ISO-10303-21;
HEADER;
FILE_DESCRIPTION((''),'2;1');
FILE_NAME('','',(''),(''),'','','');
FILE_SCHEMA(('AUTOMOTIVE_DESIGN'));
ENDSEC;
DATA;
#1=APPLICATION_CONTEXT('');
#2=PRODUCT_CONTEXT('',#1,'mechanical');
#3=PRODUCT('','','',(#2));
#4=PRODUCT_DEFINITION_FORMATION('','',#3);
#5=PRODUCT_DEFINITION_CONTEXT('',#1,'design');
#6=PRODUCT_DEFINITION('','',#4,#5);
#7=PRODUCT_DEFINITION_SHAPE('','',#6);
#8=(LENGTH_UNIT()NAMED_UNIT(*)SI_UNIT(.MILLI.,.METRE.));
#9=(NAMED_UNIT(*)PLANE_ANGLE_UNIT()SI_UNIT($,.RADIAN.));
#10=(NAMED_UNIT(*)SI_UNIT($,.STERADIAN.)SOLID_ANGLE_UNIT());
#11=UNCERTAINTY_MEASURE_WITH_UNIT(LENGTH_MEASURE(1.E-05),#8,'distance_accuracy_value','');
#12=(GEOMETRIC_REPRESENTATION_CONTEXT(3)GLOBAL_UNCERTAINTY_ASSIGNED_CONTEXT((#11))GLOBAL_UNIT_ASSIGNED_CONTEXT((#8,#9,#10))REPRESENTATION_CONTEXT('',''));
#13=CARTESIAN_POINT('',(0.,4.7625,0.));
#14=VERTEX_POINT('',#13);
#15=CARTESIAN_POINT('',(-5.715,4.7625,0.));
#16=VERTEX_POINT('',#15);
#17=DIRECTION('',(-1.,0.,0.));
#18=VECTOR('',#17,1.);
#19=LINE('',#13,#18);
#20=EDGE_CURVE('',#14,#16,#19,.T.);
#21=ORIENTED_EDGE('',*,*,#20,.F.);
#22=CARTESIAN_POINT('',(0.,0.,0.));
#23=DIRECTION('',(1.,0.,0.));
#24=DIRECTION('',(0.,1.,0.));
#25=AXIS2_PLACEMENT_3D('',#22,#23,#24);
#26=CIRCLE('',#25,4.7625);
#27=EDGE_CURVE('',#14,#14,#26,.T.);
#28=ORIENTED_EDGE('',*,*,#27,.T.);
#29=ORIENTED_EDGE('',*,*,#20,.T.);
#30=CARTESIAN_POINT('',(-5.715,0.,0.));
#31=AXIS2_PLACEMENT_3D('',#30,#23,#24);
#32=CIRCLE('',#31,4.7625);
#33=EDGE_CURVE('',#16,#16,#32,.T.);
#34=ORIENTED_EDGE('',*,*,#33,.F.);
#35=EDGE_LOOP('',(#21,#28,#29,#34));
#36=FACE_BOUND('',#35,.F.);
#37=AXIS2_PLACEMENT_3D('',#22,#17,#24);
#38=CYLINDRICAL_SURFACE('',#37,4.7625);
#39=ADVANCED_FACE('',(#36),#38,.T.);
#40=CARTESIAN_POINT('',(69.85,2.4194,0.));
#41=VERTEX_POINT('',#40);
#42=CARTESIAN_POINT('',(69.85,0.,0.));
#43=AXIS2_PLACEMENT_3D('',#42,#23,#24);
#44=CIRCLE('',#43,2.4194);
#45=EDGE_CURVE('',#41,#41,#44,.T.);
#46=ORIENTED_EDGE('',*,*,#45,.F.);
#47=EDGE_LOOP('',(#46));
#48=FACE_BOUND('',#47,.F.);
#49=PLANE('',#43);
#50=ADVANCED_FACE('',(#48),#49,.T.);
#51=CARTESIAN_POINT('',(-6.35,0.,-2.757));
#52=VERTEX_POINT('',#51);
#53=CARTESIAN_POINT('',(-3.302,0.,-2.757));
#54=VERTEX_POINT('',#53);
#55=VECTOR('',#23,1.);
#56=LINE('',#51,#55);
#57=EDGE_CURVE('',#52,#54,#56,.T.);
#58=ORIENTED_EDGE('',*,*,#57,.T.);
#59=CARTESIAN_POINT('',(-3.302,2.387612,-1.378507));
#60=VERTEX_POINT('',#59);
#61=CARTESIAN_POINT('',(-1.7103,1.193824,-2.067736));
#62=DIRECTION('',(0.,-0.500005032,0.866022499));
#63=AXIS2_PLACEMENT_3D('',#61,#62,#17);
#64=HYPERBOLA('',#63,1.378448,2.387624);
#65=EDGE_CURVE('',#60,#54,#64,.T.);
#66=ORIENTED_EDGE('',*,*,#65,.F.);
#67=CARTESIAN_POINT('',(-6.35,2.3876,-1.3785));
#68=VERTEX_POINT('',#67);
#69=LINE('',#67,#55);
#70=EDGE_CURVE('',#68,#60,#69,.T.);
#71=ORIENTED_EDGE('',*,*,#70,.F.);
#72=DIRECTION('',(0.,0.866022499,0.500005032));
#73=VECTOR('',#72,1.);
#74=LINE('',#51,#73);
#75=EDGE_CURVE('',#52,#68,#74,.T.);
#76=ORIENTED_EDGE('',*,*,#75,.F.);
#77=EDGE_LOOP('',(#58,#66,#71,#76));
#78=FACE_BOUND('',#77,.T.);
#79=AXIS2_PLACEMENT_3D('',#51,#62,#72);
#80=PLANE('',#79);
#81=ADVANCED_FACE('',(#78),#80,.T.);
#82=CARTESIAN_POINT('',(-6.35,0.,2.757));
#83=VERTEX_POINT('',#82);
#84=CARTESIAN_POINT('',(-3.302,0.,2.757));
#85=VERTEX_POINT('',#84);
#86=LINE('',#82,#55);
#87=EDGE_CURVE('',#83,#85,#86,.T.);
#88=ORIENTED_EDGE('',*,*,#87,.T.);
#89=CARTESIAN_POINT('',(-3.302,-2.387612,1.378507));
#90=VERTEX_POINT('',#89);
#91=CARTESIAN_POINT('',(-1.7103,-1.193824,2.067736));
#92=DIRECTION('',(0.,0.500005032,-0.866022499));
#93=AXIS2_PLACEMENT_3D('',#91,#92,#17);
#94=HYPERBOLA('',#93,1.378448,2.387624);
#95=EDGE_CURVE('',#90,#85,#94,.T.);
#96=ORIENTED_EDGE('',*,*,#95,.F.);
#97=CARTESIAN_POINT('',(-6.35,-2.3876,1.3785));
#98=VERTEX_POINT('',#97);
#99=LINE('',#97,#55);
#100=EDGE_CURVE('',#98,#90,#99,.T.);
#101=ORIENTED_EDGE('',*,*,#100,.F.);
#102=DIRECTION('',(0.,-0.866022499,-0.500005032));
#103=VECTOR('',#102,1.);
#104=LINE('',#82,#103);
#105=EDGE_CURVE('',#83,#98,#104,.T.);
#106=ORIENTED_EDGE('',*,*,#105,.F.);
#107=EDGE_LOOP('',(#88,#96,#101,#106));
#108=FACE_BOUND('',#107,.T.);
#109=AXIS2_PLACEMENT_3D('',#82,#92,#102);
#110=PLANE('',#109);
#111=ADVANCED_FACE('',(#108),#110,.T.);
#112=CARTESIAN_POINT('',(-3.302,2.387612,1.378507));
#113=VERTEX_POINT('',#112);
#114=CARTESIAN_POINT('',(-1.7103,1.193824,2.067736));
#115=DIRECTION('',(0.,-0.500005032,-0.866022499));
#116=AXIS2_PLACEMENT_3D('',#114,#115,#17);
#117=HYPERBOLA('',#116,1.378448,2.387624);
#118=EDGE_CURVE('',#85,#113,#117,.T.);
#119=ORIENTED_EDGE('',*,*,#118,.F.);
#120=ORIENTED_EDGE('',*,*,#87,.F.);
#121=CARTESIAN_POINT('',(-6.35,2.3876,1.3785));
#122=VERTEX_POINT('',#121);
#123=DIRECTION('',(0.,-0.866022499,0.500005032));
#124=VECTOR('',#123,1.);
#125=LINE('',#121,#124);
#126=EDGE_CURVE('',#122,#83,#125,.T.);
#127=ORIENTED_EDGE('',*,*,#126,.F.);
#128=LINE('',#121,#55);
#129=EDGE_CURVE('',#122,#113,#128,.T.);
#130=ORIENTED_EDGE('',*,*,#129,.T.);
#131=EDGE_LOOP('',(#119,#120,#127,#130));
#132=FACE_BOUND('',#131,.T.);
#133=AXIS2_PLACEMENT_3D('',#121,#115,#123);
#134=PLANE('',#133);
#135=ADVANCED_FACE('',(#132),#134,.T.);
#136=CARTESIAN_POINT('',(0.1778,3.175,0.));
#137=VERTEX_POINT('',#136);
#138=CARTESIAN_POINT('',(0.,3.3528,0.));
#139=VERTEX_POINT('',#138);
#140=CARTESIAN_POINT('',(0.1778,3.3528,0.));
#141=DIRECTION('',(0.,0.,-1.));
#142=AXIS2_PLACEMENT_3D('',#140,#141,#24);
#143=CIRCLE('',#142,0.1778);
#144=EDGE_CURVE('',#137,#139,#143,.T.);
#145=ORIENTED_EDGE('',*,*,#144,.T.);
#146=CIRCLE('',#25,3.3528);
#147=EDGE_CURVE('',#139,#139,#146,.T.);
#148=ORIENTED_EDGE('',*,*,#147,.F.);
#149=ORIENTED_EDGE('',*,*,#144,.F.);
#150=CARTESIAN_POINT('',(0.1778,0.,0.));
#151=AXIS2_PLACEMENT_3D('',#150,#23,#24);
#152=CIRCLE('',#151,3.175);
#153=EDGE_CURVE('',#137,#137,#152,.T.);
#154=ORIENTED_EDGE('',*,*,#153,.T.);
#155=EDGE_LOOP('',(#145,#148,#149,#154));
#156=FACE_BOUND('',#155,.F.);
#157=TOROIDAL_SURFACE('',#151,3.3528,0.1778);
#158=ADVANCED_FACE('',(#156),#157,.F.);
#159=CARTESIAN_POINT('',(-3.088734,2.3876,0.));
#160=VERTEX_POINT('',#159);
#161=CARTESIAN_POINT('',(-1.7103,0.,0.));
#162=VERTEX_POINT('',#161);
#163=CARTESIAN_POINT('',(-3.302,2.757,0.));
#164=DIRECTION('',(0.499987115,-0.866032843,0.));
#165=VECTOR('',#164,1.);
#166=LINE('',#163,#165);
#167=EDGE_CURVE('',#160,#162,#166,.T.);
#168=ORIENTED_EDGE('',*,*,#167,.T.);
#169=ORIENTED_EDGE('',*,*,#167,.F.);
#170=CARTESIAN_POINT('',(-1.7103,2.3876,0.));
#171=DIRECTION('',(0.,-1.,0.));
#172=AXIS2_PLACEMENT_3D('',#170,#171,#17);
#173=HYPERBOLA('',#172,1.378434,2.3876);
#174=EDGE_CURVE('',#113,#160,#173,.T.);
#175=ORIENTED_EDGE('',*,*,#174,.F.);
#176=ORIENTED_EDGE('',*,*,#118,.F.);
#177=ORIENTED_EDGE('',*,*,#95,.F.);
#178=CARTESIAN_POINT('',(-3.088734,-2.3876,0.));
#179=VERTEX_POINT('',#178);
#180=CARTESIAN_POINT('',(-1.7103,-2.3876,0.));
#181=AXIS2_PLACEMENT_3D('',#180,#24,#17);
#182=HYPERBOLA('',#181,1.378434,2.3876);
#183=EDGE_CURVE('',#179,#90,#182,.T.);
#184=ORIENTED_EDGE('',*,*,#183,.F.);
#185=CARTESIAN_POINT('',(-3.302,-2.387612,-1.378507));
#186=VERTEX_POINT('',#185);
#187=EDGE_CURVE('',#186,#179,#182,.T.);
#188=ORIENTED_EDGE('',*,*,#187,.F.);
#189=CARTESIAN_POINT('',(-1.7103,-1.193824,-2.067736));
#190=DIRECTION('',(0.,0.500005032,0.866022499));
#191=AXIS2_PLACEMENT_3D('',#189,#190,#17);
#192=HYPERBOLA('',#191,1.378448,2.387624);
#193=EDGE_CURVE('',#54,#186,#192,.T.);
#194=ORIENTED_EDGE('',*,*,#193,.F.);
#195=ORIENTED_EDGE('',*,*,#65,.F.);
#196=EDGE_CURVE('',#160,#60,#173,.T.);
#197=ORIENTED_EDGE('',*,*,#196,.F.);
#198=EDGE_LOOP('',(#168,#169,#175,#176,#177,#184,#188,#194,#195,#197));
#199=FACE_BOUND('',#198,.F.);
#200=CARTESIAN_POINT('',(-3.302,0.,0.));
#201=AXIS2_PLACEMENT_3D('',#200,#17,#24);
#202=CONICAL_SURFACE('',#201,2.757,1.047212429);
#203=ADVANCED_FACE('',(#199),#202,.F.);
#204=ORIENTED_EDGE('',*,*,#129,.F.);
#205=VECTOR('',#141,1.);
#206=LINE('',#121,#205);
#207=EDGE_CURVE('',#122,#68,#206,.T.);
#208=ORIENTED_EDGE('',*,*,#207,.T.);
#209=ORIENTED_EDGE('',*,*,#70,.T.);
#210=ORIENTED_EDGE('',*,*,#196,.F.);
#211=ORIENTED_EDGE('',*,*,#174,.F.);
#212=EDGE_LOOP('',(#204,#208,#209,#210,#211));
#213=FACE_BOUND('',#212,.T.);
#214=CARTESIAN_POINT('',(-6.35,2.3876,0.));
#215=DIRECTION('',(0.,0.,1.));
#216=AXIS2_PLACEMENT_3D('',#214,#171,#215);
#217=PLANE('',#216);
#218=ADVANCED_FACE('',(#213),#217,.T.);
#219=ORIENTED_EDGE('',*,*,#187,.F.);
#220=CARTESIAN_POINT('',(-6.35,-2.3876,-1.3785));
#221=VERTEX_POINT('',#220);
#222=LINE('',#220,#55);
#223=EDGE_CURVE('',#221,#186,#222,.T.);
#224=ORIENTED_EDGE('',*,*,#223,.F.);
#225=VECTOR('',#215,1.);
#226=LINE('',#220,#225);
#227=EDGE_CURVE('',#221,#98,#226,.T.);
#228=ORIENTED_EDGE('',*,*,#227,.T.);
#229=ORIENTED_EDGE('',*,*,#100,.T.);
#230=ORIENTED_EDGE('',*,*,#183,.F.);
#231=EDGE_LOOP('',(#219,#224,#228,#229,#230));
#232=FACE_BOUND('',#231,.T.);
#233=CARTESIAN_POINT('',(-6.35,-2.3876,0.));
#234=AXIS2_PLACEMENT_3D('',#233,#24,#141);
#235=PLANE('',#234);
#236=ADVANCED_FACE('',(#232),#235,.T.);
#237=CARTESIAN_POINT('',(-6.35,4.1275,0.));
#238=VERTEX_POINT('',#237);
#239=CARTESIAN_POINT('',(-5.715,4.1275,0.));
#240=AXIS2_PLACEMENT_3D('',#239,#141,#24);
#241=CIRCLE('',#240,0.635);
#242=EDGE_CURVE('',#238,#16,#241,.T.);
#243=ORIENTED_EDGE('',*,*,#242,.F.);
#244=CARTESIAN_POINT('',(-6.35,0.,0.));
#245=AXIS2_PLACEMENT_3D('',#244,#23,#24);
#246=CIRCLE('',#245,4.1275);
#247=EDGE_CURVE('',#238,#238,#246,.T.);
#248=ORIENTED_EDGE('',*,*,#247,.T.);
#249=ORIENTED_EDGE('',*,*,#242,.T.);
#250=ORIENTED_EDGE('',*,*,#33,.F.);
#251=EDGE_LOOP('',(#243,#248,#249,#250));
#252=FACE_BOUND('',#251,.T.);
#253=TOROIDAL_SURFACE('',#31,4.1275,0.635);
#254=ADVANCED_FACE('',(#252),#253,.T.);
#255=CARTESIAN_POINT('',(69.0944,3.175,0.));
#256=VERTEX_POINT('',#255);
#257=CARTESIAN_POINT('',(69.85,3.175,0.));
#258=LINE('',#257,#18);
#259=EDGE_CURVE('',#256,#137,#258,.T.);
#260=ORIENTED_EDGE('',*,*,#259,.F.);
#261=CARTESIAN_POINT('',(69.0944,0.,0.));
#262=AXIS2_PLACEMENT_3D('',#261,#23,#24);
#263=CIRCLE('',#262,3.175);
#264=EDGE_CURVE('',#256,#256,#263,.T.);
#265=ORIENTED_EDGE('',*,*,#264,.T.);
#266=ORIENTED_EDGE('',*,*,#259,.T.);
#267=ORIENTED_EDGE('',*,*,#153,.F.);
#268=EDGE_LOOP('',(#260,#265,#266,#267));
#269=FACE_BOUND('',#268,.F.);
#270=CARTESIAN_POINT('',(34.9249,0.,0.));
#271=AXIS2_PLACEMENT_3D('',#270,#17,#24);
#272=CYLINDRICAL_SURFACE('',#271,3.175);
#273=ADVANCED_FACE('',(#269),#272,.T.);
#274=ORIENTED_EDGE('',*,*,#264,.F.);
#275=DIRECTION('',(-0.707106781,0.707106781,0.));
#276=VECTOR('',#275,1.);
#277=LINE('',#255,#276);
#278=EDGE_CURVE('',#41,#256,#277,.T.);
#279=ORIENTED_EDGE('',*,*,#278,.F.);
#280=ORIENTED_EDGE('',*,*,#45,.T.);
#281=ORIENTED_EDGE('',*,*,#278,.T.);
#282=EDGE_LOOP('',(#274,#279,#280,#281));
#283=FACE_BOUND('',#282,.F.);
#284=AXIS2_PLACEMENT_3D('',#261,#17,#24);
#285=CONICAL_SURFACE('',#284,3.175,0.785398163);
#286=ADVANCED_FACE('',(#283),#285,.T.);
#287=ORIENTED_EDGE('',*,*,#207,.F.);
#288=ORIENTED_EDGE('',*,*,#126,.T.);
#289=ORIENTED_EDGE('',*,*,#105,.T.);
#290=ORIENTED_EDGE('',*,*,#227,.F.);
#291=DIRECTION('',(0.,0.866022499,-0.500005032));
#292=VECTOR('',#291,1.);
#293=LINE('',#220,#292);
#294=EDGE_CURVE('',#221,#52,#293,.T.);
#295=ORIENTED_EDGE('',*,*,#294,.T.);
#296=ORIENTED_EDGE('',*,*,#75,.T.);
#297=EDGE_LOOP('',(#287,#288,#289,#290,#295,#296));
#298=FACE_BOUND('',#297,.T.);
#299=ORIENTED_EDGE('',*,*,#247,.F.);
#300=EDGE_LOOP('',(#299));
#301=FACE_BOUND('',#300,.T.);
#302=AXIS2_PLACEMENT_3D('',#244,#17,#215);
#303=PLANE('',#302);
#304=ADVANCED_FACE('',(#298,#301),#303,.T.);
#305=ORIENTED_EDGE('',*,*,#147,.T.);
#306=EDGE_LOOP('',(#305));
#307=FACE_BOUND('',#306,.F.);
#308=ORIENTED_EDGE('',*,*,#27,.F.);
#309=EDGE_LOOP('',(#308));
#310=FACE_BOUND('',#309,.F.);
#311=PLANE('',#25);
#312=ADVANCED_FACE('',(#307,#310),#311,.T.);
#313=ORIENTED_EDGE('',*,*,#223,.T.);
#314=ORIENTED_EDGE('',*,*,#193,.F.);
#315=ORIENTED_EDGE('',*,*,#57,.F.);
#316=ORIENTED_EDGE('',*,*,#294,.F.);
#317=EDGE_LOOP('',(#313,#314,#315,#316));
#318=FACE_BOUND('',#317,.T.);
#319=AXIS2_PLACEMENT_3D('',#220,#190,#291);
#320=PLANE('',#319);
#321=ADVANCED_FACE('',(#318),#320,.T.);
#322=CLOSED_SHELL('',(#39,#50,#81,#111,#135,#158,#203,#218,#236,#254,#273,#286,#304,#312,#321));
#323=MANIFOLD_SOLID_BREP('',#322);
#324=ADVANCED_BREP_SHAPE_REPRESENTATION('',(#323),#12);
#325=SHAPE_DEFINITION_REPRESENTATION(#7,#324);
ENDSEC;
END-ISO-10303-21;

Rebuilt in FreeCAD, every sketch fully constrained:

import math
import FreeCAD as App
import Part
import Sketcher
Q = App.Units.Quantity


def edges_at(feature, points):
    """Names of the edges that pass closest to the given points."""
    edges = feature.Shape.Edges
    near = lambda p: min(range(len(edges)), key=lambda i: edges[i].distToShape(Part.Vertex(*p))[0])
    return sorted({f"Edge{near(p) + 1}" for p in points})

doc = App.newDocument("Part")
body = doc.addObject("PartDesign::Body", "Body")

sketch1 = doc.addObject("Sketcher::SketchObject", "Sketch")
body.addObject(sketch1)
sketch1.AttachmentSupport = (doc.XY_Plane, [""])
sketch1.MapMode = "FlatFace"
sketch1.addGeometry(Part.LineSegment(App.Vector(-3.3, 2.8, 0), App.Vector(-1.7, 0, 0)), False)
sketch1.addGeometry(Part.LineSegment(App.Vector(-1.7, 0, 0), App.Vector(69.8, 0, 0)), False)
sketch1.addGeometry(Part.LineSegment(App.Vector(69.8, 0, 0), App.Vector(69.8, 3.2, 0)), False)
sketch1.addGeometry(Part.LineSegment(App.Vector(69.8, 3.2, 0), App.Vector(0, 3.2, 0)), False)
sketch1.addGeometry(Part.LineSegment(App.Vector(0, 3.2, 0), App.Vector(0, 4.8, 0)), False)
sketch1.addGeometry(Part.LineSegment(App.Vector(0, 4.8, 0), App.Vector(-6.3, 4.8, 0)), False)
sketch1.addGeometry(Part.LineSegment(App.Vector(-6.3, 4.8, 0), App.Vector(-6.3, 2.8, 0)), False)
sketch1.addGeometry(Part.LineSegment(App.Vector(-6.3, 2.8, 0), App.Vector(-3.3, 2.8, 0)), False)
sketch1.addConstraint(Sketcher.Constraint("Coincident", 0, 2, 1, 1))
sketch1.addConstraint(Sketcher.Constraint("Coincident", 1, 2, 2, 1))
sketch1.addConstraint(Sketcher.Constraint("Coincident", 2, 2, 3, 1))
sketch1.addConstraint(Sketcher.Constraint("Coincident", 3, 2, 4, 1))
sketch1.addConstraint(Sketcher.Constraint("Coincident", 4, 2, 5, 1))
sketch1.addConstraint(Sketcher.Constraint("Coincident", 5, 2, 6, 1))
sketch1.addConstraint(Sketcher.Constraint("Coincident", 6, 2, 7, 1))
sketch1.addConstraint(Sketcher.Constraint("Coincident", 7, 2, 0, 1))
sketch1.addConstraint(Sketcher.Constraint("Horizontal", 1))
sketch1.addConstraint(Sketcher.Constraint("Vertical", 2))
sketch1.addConstraint(Sketcher.Constraint("Horizontal", 3))
sketch1.addConstraint(Sketcher.Constraint("Vertical", 4))
sketch1.addConstraint(Sketcher.Constraint("Horizontal", 5))
sketch1.addConstraint(Sketcher.Constraint("Vertical", 6))
sketch1.addConstraint(Sketcher.Constraint("Horizontal", 7))
sketch1.addConstraint(Sketcher.Constraint("PointOnObject", 0, 2, -1))
sketch1.addConstraint(Sketcher.Constraint("PointOnObject", 3, 2, -2))
sketch1.addConstraint(Sketcher.Constraint("DistanceX", 3, 2, 3, 1, Q("2.75 in")))
sketch1.addConstraint(Sketcher.Constraint("DistanceX", 5, 2, 5, 1, Q("0.25 in")))
sketch1.addConstraint(Sketcher.Constraint("DistanceX", 7, 1, 7, 2, Q("0.12 in")))
sketch1.addConstraint(Sketcher.Constraint("DistanceY", 2, 1, 2, 2, Q("0.125 in")))
sketch1.addConstraint(Sketcher.Constraint("Angle", 0, Q("-60.0009 deg")))
sketch1.addConstraint(Sketcher.Constraint("DistanceY", 4, 1, 4, 2, Q("0.0625 in")))
sketch1.addConstraint(Sketcher.Constraint("DistanceX", 1, 1, 1, 2, Q("71.5603 mm")))
revolution = doc.addObject("PartDesign::Revolution", "Revolution")
body.addObject(revolution)
revolution.Profile = sketch1
revolution.ReferenceAxis = (sketch1, ["H_Axis"])
revolution.Angle = 360

sketch2 = doc.addObject("Sketcher::SketchObject", "Sketch001")
body.addObject(sketch2)
sketch2.AttachmentSupport = (doc.YZ_Plane, [""])
sketch2.MapMode = "FlatFace"
sketch2.AttachmentOffset = App.Placement(App.Vector(0, 0, -0.25 * 25.4), App.Rotation())
sketch2.addGeometry(Part.LineSegment(App.Vector(2.4, 1.4, 0), App.Vector(0, 2.8, 0)), False)
sketch2.addGeometry(Part.ArcOfCircle(Part.Circle(App.Vector(0, 0, 0), App.Vector(0, 0, 1), 2.8), math.radians(30), math.radians(90)), False)
sketch2.addGeometry(Part.ArcOfCircle(Part.Circle(App.Vector(0, 0, 0), App.Vector(0, 0, 1), 2.8), math.radians(90), math.radians(150)), False)
sketch2.addGeometry(Part.LineSegment(App.Vector(0, 2.8, 0), App.Vector(-2.4, 1.4, 0)), False)
sketch2.addGeometry(Part.ArcOfCircle(Part.Circle(App.Vector(0, 0, 0), App.Vector(0, 0, 1), 2.8), math.radians(-30), math.radians(30)), False)
sketch2.addGeometry(Part.LineSegment(App.Vector(2.4, 1.4, 0), App.Vector(2.4, -1.4, 0)), False)
sketch2.addGeometry(Part.LineSegment(App.Vector(-2.4, 1.4, 0), App.Vector(-2.4, -1.4, 0)), False)
sketch2.addGeometry(Part.ArcOfCircle(Part.Circle(App.Vector(0, 0, 0), App.Vector(0, 0, 1), 2.8), math.radians(150), math.radians(210)), False)
sketch2.addGeometry(Part.LineSegment(App.Vector(-2.4, -1.4, 0), App.Vector(0, -2.8, 0)), False)
sketch2.addGeometry(Part.ArcOfCircle(Part.Circle(App.Vector(0, 0, 0), App.Vector(0, 0, 1), 2.8), math.radians(-150), math.radians(-90)), False)
sketch2.addGeometry(Part.ArcOfCircle(Part.Circle(App.Vector(0, 0, 0), App.Vector(0, 0, 1), 2.8), math.radians(-90), math.radians(-30)), False)
sketch2.addGeometry(Part.LineSegment(App.Vector(0, -2.8, 0), App.Vector(2.4, -1.4, 0)), False)
sketch2.addConstraint(Sketcher.Constraint("Coincident", 0, 1, 1, 1))
sketch2.addConstraint(Sketcher.Constraint("Coincident", 1, 2, 0, 2))
sketch2.addConstraint(Sketcher.Constraint("Coincident", 2, 1, 3, 1))
sketch2.addConstraint(Sketcher.Constraint("Coincident", 3, 2, 2, 2))
sketch2.addConstraint(Sketcher.Constraint("Coincident", 4, 1, 5, 2))
sketch2.addConstraint(Sketcher.Constraint("Coincident", 5, 1, 4, 2))
sketch2.addConstraint(Sketcher.Constraint("Coincident", 6, 1, 7, 1))
sketch2.addConstraint(Sketcher.Constraint("Coincident", 7, 2, 6, 2))
sketch2.addConstraint(Sketcher.Constraint("Coincident", 8, 1, 9, 1))
sketch2.addConstraint(Sketcher.Constraint("Coincident", 9, 2, 8, 2))
sketch2.addConstraint(Sketcher.Constraint("Coincident", 10, 1, 11, 1))
sketch2.addConstraint(Sketcher.Constraint("Coincident", 11, 2, 10, 2))
sketch2.addConstraint(Sketcher.Constraint("Vertical", 5))
sketch2.addConstraint(Sketcher.Constraint("Vertical", 6))
sketch2.addConstraint(Sketcher.Constraint("Coincident", 1, 3, -1, 1))
sketch2.addConstraint(Sketcher.Constraint("Coincident", 2, 3, -1, 1))
sketch2.addConstraint(Sketcher.Constraint("Coincident", 4, 3, -1, 1))
sketch2.addConstraint(Sketcher.Constraint("Coincident", 7, 3, -1, 1))
sketch2.addConstraint(Sketcher.Constraint("Coincident", 9, 3, -1, 1))
sketch2.addConstraint(Sketcher.Constraint("Coincident", 10, 3, -1, 1))
sketch2.addConstraint(Sketcher.Constraint("Coincident", 2, 1, 1, 2))
sketch2.addConstraint(Sketcher.Constraint("Coincident", 5, 1, 0, 1))
sketch2.addConstraint(Sketcher.Constraint("Coincident", 6, 1, 3, 2))
sketch2.addConstraint(Sketcher.Constraint("Coincident", 8, 1, 7, 2))
sketch2.addConstraint(Sketcher.Constraint("Coincident", 10, 1, 9, 2))
sketch2.addConstraint(Sketcher.Constraint("PointOnObject", 1, 2, -2))
sketch2.addConstraint(Sketcher.Constraint("PointOnObject", 9, 2, -2))
sketch2.addConstraint(Sketcher.Constraint("Parallel", 0, 8))
sketch2.addConstraint(Sketcher.Constraint("Parallel", 3, 11))
sketch2.addConstraint(Sketcher.Constraint("Angle", 0, Q("149.9997 deg")))
sketch2.addConstraint(Sketcher.Constraint("Radius", 1, Q("2.757 mm")))
pad1 = doc.addObject("PartDesign::Pad", "Pad")
body.addObject(pad1)
pad1.Profile = sketch2
pad1.Type = "UpToFirst"
doc.recompute()

fillet = doc.addObject("PartDesign::Fillet", "Fillet")
body.addObject(fillet)
fillet.Base = (pad1, edges_at(pad1, [(-6.35, -4.763, 0)]))
fillet.Radius = Q("0.025 in")
doc.recompute()

chamfer = doc.addObject("PartDesign::Chamfer", "Chamfer")
body.addObject(chamfer)
chamfer.Base = (fillet, edges_at(fillet, [(69.85, -3.175, 0)]))
chamfer.ChamferType = "Two distances"
chamfer.Size = 0.7556
chamfer.Size2 = 0.7556
doc.recompute()

fillet2 = doc.addObject("PartDesign::Fillet", "Fillet001")
body.addObject(fillet2)
fillet2.Base = (chamfer, edges_at(chamfer, [(0, -3.175, 0)]))
fillet2.Radius = Q("0.007 in")

doc.recompute()
